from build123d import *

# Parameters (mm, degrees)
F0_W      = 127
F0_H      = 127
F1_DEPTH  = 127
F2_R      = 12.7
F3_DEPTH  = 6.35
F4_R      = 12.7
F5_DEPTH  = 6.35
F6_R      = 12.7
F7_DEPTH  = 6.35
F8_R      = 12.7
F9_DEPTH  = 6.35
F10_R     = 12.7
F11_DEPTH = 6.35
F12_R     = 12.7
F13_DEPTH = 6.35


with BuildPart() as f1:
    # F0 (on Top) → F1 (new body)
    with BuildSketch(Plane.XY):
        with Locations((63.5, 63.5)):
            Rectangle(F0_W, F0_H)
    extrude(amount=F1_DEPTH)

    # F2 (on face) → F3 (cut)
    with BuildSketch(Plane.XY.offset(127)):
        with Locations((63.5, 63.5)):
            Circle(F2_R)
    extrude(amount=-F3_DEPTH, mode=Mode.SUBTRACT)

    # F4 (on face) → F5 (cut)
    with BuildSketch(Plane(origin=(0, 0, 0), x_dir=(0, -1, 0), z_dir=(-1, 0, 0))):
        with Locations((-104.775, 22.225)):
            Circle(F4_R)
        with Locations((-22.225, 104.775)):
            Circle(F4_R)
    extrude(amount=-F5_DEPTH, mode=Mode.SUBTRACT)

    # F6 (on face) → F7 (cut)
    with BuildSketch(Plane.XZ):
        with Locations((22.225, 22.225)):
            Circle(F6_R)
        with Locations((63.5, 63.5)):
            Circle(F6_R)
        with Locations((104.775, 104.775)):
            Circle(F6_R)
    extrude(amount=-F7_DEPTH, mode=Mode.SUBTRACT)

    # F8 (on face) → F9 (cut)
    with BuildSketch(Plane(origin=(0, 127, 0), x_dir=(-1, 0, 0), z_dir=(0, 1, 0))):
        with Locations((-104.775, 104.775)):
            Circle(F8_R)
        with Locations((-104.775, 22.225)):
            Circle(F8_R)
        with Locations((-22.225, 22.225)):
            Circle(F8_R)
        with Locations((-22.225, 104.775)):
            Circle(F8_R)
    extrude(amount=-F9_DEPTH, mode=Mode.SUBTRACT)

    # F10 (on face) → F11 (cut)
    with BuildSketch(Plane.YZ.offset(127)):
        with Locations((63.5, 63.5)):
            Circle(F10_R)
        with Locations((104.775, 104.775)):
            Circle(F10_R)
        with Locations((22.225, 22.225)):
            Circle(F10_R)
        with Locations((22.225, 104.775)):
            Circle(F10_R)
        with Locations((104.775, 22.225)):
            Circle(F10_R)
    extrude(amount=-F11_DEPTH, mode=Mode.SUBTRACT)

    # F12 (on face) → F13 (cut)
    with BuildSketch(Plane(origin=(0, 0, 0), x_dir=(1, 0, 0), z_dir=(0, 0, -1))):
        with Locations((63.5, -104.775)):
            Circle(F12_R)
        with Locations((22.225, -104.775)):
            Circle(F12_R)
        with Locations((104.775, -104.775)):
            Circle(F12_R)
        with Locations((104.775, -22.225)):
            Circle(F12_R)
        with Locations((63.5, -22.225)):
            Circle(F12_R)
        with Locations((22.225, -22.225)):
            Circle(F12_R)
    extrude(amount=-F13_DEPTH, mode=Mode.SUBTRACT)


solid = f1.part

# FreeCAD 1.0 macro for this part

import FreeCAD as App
import Part
import Sketcher
Q = App.Units.Quantity


def add_polygon(sketch, points):
    """Adds a closed chain of lines whose ends are joined by coincident constraints."""
    first, n = sketch.GeometryCount, len(points)
    for a, b in zip(points, points[1:] + points[:1]):
        sketch.addGeometry(Part.LineSegment(App.Vector(*a, 0), App.Vector(*b, 0)), False)
    for i in range(n):
        sketch.addConstraint(Sketcher.Constraint("Coincident", first + i, 2, first + (i + 1) % n, 1))

doc = App.newDocument("Part")
params = doc.addObject("Spreadsheet::Sheet", "Params")
for row, (alias, value) in enumerate([
    ("sketch1_width", "5 in"),
    ("pad1_length", "5 in"),
    ("sketch2_diameter", "1 in"),
    ("pocket1_length", "0.25 in"),
    ("sketch3_diameter", "1 in"),
    ("pocket2_length", "0.25 in"),
    ("sketch4_diameter", "1 in"),
    ("pocket3_length", "0.25 in"),
    ("sketch5_diameter", "1 in"),
    ("pocket4_length", "0.25 in"),
    ("sketch6_diameter", "1 in"),
    ("pocket5_length", "0.25 in"),
    ("sketch7_diameter", "1 in"),
    ("pocket6_length", "0.25 in"),
], start=1):
    params.set(f"A{row}", alias)
    params.set(f"B{row}", "=" + value)
    params.setAlias(f"B{row}", alias)

body = doc.addObject("PartDesign::Body", "Body")

# Sketch on XY plane
sketch1 = body.newObject("Sketcher::SketchObject", "Sketch")
sketch1.AttachmentSupport = (doc.getObject("XY_Plane"), [""])
sketch1.MapMode = "FlatFace"
add_polygon(sketch1, [(0, 127), (0, 0), (127, 0), (127, 127)])  # lines 0-3
sketch1.addConstraint([
    Sketcher.Constraint("Vertical", 0),
    Sketcher.Constraint("Horizontal", 1),
    Sketcher.Constraint("Vertical", 2),
    Sketcher.Constraint("Horizontal", 3),
    Sketcher.Constraint("Coincident", 0, 2, -1, 1),
    Sketcher.Constraint("Equal", 3, 0),
    Sketcher.Constraint("DistanceX", 1, 1, 1, 2, Q("5 in")),
])
sketch1.setExpression("Constraints[10]", "Params.sketch1_width")
pad1 = body.newObject("PartDesign::Pad", "Pad")
pad1.Profile = sketch1
pad1.setExpression("Length", "Params.pad1_length")

# Sketch on XY plane
sketch2 = body.newObject("Sketcher::SketchObject", "Sketch001")
sketch2.AttachmentSupport = (doc.getObject("XY_Plane"), [""])
sketch2.MapMode = "FlatFace"
sketch2.AttachmentOffset = App.Placement(App.Vector(0, 0, 5 * 25.4), App.Rotation())
sketch2.addGeometry(Part.Circle(App.Vector(64, 64, 0), App.Vector(0, 0, 1), 13), False)
sketch2.addConstraint([
    Sketcher.Constraint("Diameter", 0, Q("1 in")),
    Sketcher.Constraint("DistanceX", -1, 1, 0, 3, Q("2.5 in")),
    Sketcher.Constraint("DistanceY", -1, 1, 0, 3, Q("2.5 in")),
])
sketch2.setExpression("Constraints[0]", "Params.sketch2_diameter")
pocket1 = body.newObject("PartDesign::Pocket", "Pocket")
pocket1.Profile = sketch2
pocket1.setExpression("Length", "Params.pocket1_length")

# Sketch on YZ plane
sketch3 = body.newObject("Sketcher::SketchObject", "Sketch002")
sketch3.AttachmentSupport = (doc.getObject("YZ_Plane"), [""])
sketch3.MapMode = "FlatFace"
sketch3.addGeometry([
    Part.Circle(App.Vector(105, 22, 0), App.Vector(0, 0, 1), 13),
    Part.Circle(App.Vector(22, 105, 0), App.Vector(0, 0, 1), 13),
], False)
sketch3.addConstraint([
    Sketcher.Constraint("Equal", 0, 1),
    Sketcher.Constraint("Diameter", 0, Q("1 in")),
    Sketcher.Constraint("DistanceX", 1, 3, 0, 3, Q("3.25 in")),
    Sketcher.Constraint("DistanceY", 0, 3, 1, 3, Q("3.25 in")),
    Sketcher.Constraint("DistanceX", -1, 1, 0, 3, Q("4.125 in")),
    Sketcher.Constraint("DistanceY", -1, 1, 0, 3, Q("0.875 in")),
])
sketch3.setExpression("Constraints[1]", "Params.sketch3_diameter")
pocket2 = body.newObject("PartDesign::Pocket", "Pocket001")
pocket2.Profile = sketch3
pocket2.setExpression("Length", "Params.pocket2_length")
pocket2.Reversed = True

# Sketch on XZ plane
sketch4 = body.newObject("Sketcher::SketchObject", "Sketch003")
sketch4.AttachmentSupport = (doc.getObject("XZ_Plane"), [""])
sketch4.MapMode = "FlatFace"
sketch4.addGeometry([
    Part.Circle(App.Vector(22, 22, 0), App.Vector(0, 0, 1), 13),
    Part.Circle(App.Vector(64, 64, 0), App.Vector(0, 0, 1), 13),
    Part.Circle(App.Vector(105, 105, 0), App.Vector(0, 0, 1), 13),
], False)
sketch4.addConstraint([
    Sketcher.Constraint("Equal", 0, 1),
    Sketcher.Constraint("Equal", 1, 2),
    Sketcher.Constraint("Diameter", 0, Q("1 in")),
    Sketcher.Constraint("DistanceX", -1, 1, 1, 3, Q("2.5 in")),
    Sketcher.Constraint("DistanceY", -1, 1, 1, 3, Q("2.5 in")),
    Sketcher.Constraint("DistanceX", 0, 3, 2, 3, Q("3.25 in")),
    Sketcher.Constraint("DistanceY", 0, 3, 2, 3, Q("3.25 in")),
    Sketcher.Constraint("DistanceX", -1, 1, 0, 3, Q("0.875 in")),
    Sketcher.Constraint("DistanceY", -1, 1, 0, 3, Q("0.875 in")),
])
sketch4.setExpression("Constraints[2]", "Params.sketch4_diameter")
pocket3 = body.newObject("PartDesign::Pocket", "Pocket002")
pocket3.Profile = sketch4
pocket3.setExpression("Length", "Params.pocket3_length")

# Sketch on XZ plane
sketch5 = body.newObject("Sketcher::SketchObject", "Sketch004")
sketch5.AttachmentSupport = (doc.getObject("XZ_Plane"), [""])
sketch5.MapMode = "FlatFace"
sketch5.AttachmentOffset = App.Placement(App.Vector(0, 0, -5 * 25.4), App.Rotation())
sketch5.addGeometry([
    Part.Circle(App.Vector(105, 105, 0), App.Vector(0, 0, 1), 13),
    Part.Circle(App.Vector(105, 22, 0), App.Vector(0, 0, 1), 13),
    Part.Circle(App.Vector(22, 22, 0), App.Vector(0, 0, 1), 13),
    Part.Circle(App.Vector(22, 105, 0), App.Vector(0, 0, 1), 13),
], False)
sketch5.addConstraint([
    Sketcher.Constraint("Equal", 0, 1),
    Sketcher.Constraint("Equal", 1, 2),
    Sketcher.Constraint("Equal", 2, 3),
    Sketcher.Constraint("Horizontal", 1, 3, 2, 3),
    Sketcher.Constraint("Horizontal", 0, 3, 3, 3),
    Sketcher.Constraint("Vertical", 0, 3, 1, 3),
    Sketcher.Constraint("Vertical", 2, 3, 3, 3),
    Sketcher.Constraint("Diameter", 0, Q("1 in")),
    Sketcher.Constraint("DistanceY", 1, 3, 0, 3, Q("3.25 in")),
    Sketcher.Constraint("DistanceX", 2, 3, 1, 3, Q("3.25 in")),
    Sketcher.Constraint("DistanceX", -1, 1, 0, 3, Q("4.125 in")),
    Sketcher.Constraint("DistanceY", -1, 1, 0, 3, Q("4.125 in")),
])
sketch5.setExpression("Constraints[7]", "Params.sketch5_diameter")
pocket4 = body.newObject("PartDesign::Pocket", "Pocket003")
pocket4.Profile = sketch5
pocket4.setExpression("Length", "Params.pocket4_length")
pocket4.Reversed = True

# Sketch on YZ plane
sketch6 = body.newObject("Sketcher::SketchObject", "Sketch005")
sketch6.AttachmentSupport = (doc.getObject("YZ_Plane"), [""])
sketch6.MapMode = "FlatFace"
sketch6.AttachmentOffset = App.Placement(App.Vector(0, 0, 5 * 25.4), App.Rotation())
sketch6.addGeometry([
    Part.Circle(App.Vector(64, 64, 0), App.Vector(0, 0, 1), 13),  # 0
    Part.Circle(App.Vector(105, 105, 0), App.Vector(0, 0, 1), 13),  # 1
    Part.Circle(App.Vector(22, 22, 0), App.Vector(0, 0, 1), 13),  # 2
    Part.Circle(App.Vector(22, 105, 0), App.Vector(0, 0, 1), 13),  # 3
    Part.Circle(App.Vector(105, 22, 0), App.Vector(0, 0, 1), 13),  # 4
], False)
sketch6.addConstraint([
    Sketcher.Constraint("Equal", 0, 1),
    Sketcher.Constraint("Equal", 1, 2),
    Sketcher.Constraint("Equal", 2, 3),
    Sketcher.Constraint("Equal", 3, 4),
    Sketcher.Constraint("Horizontal", 1, 3, 3, 3),
    Sketcher.Constraint("Horizontal", 2, 3, 4, 3),
    Sketcher.Constraint("Vertical", 2, 3, 3, 3),
    Sketcher.Constraint("Vertical", 1, 3, 4, 3),
    Sketcher.Constraint("Diameter", 0, Q("1 in")),
    Sketcher.Constraint("DistanceX", -1, 1, 0, 3, Q("2.5 in")),
    Sketcher.Constraint("DistanceY", -1, 1, 0, 3, Q("2.5 in")),
    Sketcher.Constraint("DistanceX", 2, 3, 1, 3, Q("3.25 in")),
    Sketcher.Constraint("DistanceY", 2, 3, 1, 3, Q("3.25 in")),
    Sketcher.Constraint("DistanceX", -1, 1, 1, 3, Q("4.125 in")),
    Sketcher.Constraint("DistanceY", -1, 1, 1, 3, Q("4.125 in")),
])
sketch6.setExpression("Constraints[8]", "Params.sketch6_diameter")
pocket5 = body.newObject("PartDesign::Pocket", "Pocket004")
pocket5.Profile = sketch6
pocket5.setExpression("Length", "Params.pocket5_length")

# Sketch on XY plane
sketch7 = body.newObject("Sketcher::SketchObject", "Sketch006")
sketch7.AttachmentSupport = (doc.getObject("XY_Plane"), [""])
sketch7.MapMode = "FlatFace"
sketch7.addGeometry([
    Part.Circle(App.Vector(64, 105, 0), App.Vector(0, 0, 1), 13),  # 0
    Part.Circle(App.Vector(22, 105, 0), App.Vector(0, 0, 1), 13),  # 1
    Part.Circle(App.Vector(105, 105, 0), App.Vector(0, 0, 1), 13),  # 2
    Part.Circle(App.Vector(105, 22, 0), App.Vector(0, 0, 1), 13),  # 3
    Part.Circle(App.Vector(64, 22, 0), App.Vector(0, 0, 1), 13),  # 4
    Part.Circle(App.Vector(22, 22, 0), App.Vector(0, 0, 1), 13),  # 5
], False)
sketch7.addConstraint([
    Sketcher.Constraint("Equal", 0, 1),
    Sketcher.Constraint("Equal", 1, 2),
    Sketcher.Constraint("Equal", 2, 3),
    Sketcher.Constraint("Equal", 3, 4),
    Sketcher.Constraint("Equal", 4, 5),
    Sketcher.Constraint("Horizontal", 0, 3, 1, 3),
    Sketcher.Constraint("Horizontal", 1, 3, 2, 3),
    Sketcher.Constraint("Horizontal", 3, 3, 4, 3),
    Sketcher.Constraint("Horizontal", 4, 3, 5, 3),
    Sketcher.Constraint("Vertical", 2, 3, 3, 3),
    Sketcher.Constraint("Vertical", 0, 3, 4, 3),
    Sketcher.Constraint("Vertical", 1, 3, 5, 3),
    Sketcher.Constraint("Diameter", 0, Q("1 in")),
    Sketcher.Constraint("DistanceX", -1, 1, 0, 3, Q("2.5 in")),
    Sketcher.Constraint("DistanceX", 1, 3, 2, 3, Q("3.25 in")),
    Sketcher.Constraint("DistanceY", 3, 3, 2, 3, Q("3.25 in")),
    Sketcher.Constraint("DistanceY", -1, 1, 0, 3, Q("4.125 in")),
    Sketcher.Constraint("DistanceX", -1, 1, 1, 3, Q("0.875 in")),
])
sketch7.setExpression("Constraints[12]", "Params.sketch7_diameter")
pocket6 = body.newObject("PartDesign::Pocket", "Pocket005")
pocket6.Profile = sketch7
pocket6.setExpression("Length", "Params.pocket6_length")
pocket6.Reversed = True

doc.recompute()
